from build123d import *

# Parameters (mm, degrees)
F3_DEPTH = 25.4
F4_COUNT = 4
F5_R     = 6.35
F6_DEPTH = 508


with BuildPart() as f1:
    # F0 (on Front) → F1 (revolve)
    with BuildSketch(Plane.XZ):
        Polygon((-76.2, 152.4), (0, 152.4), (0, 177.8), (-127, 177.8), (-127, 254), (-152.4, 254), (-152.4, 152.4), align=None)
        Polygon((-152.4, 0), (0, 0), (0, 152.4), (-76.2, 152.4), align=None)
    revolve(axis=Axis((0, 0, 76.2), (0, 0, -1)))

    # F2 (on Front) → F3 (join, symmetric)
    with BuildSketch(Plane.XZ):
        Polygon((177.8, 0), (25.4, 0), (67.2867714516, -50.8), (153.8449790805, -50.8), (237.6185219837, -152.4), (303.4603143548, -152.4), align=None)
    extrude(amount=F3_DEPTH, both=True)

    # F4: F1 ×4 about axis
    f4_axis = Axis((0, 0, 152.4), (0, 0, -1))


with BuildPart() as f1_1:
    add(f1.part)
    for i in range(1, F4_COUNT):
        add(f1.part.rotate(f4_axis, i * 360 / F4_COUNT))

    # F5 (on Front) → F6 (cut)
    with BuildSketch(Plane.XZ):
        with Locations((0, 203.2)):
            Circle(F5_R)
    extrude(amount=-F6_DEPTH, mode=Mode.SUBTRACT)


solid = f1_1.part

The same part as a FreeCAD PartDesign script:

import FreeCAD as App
import Part
import Sketcher

V = App.Vector
Q = App.Units.Quantity


def add_polygon(sketch, points):
    """Adds a closed chain of lines whose ends are joined by coincident constraints."""
    first, n = sketch.GeometryCount, len(points)
    for a, b in zip(points, points[1:] + points[:1]):
        sketch.addGeometry(Part.LineSegment(App.Vector(*a, 0), App.Vector(*b, 0)), False)
    for i in range(n):
        sketch.addConstraint(Sketcher.Constraint("Coincident", first + i, 2, first + (i + 1) % n, 1))

doc = App.newDocument("Part")
params = doc.addObject("Spreadsheet::Sheet", "Params")
for row, (alias, value) in enumerate([
    ("sketch1_width", "5 in"),
    ("sketch1_width2", "1 in"),
    ("sketch1_width3", "3 in"),
    ("sketch1_height", "4 in"),
    ("sketch1_height2", "7 in"),
    ("revolution_angle", "360 deg"),
    ("sketch2_width", "6 in"),
    ("pad1_length", "2 in"),
    ("sketch3_diameter", "0.5 in"),
    ("pocket1_length", "20 in"),
], start=1):
    params.set(f"A{row}", alias)
    params.set(f"B{row}", "=" + value)
    params.setAlias(f"B{row}", alias)

body = doc.addObject("PartDesign::Body", "Body")

sketch1 = body.newObject("Sketcher::SketchObject", "Sketch")
sketch1.AttachmentSupport = (doc.getObject("XZ_Plane"), [""])
sketch1.MapMode = "FlatFace"
add_polygon(sketch1, [(0, 178), (-127, 178), (-127, 254), (-152, 254), (-152, 152), (-76, 152), (-152, 0), (0, 0)])
sketch1.addConstraint([
    Sketcher.Constraint("Horizontal", 0),
    Sketcher.Constraint("Vertical", 1),
    Sketcher.Constraint("Horizontal", 2),
    Sketcher.Constraint("Vertical", 3),
    Sketcher.Constraint("Horizontal", 4),
    Sketcher.Constraint("Horizontal", 6),
    Sketcher.Constraint("Vertical", 7),
    Sketcher.Constraint("Coincident", 6, 2, -1, 1),
    Sketcher.Constraint("Vertical", 3, 2, 5, 2),
    Sketcher.Constraint("Equal", 4, 1),
    Sketcher.Constraint("DistanceX", 0, 2, 0, 1, Q("5 in")),
    Sketcher.Constraint("DistanceX", 2, 2, 2, 1, Q("1 in")),
    Sketcher.Constraint("DistanceX", 4, 1, 4, 2, Q("3 in")),
    Sketcher.Constraint("DistanceY", 3, 2, 3, 1, Q("4 in")),
    Sketcher.Constraint("DistanceY", 7, 1, 7, 2, Q("7 in")),
])
sketch1.setExpression("Constraints[18]", "Params.sketch1_width")
sketch1.setExpression("Constraints[19]", "Params.sketch1_width2")
sketch1.setExpression("Constraints[20]", "Params.sketch1_width3")
sketch1.setExpression("Constraints[21]", "Params.sketch1_height")
sketch1.setExpression("Constraints[22]", "Params.sketch1_height2")
revolution = body.newObject("PartDesign::Revolution", "Revolution")
revolution.Profile = sketch1
revolution.ReferenceAxis = (sketch1, ["V_Axis"])
revolution.setExpression("Angle", "Params.revolution_angle")

sketch2 = body.newObject("Sketcher::SketchObject", "Sketch001")
sketch2.AttachmentSupport = (doc.getObject("XZ_Plane"), [""])
sketch2.MapMode = "FlatFace"
add_polygon(sketch2, [(178, 0), (25, 0), (67, -51), (154, -51), (238, -152), (303, -152)])
sketch2.addConstraint([
    Sketcher.Constraint("Horizontal", 0),
    Sketcher.Constraint("Horizontal", 2),
    Sketcher.Constraint("Horizontal", 4),
    Sketcher.Constraint("PointOnObject", 0, 2, -1),
    Sketcher.Constraint("Parallel", 1, 3),
    Sketcher.Constraint("Parallel", 3, 5),
    Sketcher.Constraint("DistanceX", 0, 2, 0, 1, Q("6 in")),
    Sketcher.Constraint("DistanceX", -1, 1, 0, 2, Q("1 in")),
    Sketcher.Constraint("DistanceY", 1, 2, -1, 1, Q("2 in")),
    Sketcher.Constraint("DistanceY", 3, 2, -1, 1, Q("6 in")),
    Sketcher.Constraint("DistanceX", 2, 1, 2, 2, 86.558208),
    Sketcher.Constraint("DistanceX", -1, 1, 1, 2, 67.286771),
])
sketch2.setExpression("Constraints[12]", "Params.sketch2_width")
pad1 = body.newObject("PartDesign::Pad", "Pad")
pad1.Profile = sketch2
pad1.setExpression("Length", "Params.pad1_length")
pad1.Midplane = True
body2 = doc.addObject("PartDesign::Body", "Body001")
doc.recompute()

body2.BaseFeature = body
doc.recompute()

body3 = doc.addObject("PartDesign::Body", "Body002")
body3.BaseFeature = body
body3.Placement = App.Placement(V(0, 0, 0), App.Rotation(V(0, 0, -1), 90))
boolean = body2.newObject("PartDesign::Boolean", "Boolean")
boolean.Type = "Fuse"
boolean.addObjects([body3])
doc.recompute()

body4 = doc.addObject("PartDesign::Body", "Body003")
body4.BaseFeature = body
body4.Placement = App.Placement(V(0, 0, 0), App.Rotation(V(0, 0, -1), 180))
boolean2 = body2.newObject("PartDesign::Boolean", "Boolean001")
boolean2.Type = "Fuse"
boolean2.addObjects([body4])
doc.recompute()

body.Placement = App.Placement(V(0, 0, 0), App.Rotation(V(0, 0, -1), 270))
boolean3 = body2.newObject("PartDesign::Boolean", "Boolean002")
boolean3.Type = "Fuse"
boolean3.addObjects([body])

sketch3 = body2.newObject("Sketcher::SketchObject", "Sketch002")
sketch3.AttachmentSupport = (doc.getObject("XZ_Plane001"), [""])
sketch3.MapMode = "FlatFace"
sketch3.addGeometry(Part.Circle(V(0, 203, 0), V(0, 0, 1), 6), False)
sketch3.addConstraint([
    Sketcher.Constraint("PointOnObject", 0, 3, -2),
    Sketcher.Constraint("Diameter", 0, Q("0.5 in")),
    Sketcher.Constraint("DistanceY", -1, 1, 0, 3, Q("8 in")),
])
sketch3.setExpression("Constraints[1]", "Params.sketch3_diameter")
pocket1 = body2.newObject("PartDesign::Pocket", "Pocket")
pocket1.Profile = sketch3
pocket1.setExpression("Length", "Params.pocket1_length")

doc.recompute()
